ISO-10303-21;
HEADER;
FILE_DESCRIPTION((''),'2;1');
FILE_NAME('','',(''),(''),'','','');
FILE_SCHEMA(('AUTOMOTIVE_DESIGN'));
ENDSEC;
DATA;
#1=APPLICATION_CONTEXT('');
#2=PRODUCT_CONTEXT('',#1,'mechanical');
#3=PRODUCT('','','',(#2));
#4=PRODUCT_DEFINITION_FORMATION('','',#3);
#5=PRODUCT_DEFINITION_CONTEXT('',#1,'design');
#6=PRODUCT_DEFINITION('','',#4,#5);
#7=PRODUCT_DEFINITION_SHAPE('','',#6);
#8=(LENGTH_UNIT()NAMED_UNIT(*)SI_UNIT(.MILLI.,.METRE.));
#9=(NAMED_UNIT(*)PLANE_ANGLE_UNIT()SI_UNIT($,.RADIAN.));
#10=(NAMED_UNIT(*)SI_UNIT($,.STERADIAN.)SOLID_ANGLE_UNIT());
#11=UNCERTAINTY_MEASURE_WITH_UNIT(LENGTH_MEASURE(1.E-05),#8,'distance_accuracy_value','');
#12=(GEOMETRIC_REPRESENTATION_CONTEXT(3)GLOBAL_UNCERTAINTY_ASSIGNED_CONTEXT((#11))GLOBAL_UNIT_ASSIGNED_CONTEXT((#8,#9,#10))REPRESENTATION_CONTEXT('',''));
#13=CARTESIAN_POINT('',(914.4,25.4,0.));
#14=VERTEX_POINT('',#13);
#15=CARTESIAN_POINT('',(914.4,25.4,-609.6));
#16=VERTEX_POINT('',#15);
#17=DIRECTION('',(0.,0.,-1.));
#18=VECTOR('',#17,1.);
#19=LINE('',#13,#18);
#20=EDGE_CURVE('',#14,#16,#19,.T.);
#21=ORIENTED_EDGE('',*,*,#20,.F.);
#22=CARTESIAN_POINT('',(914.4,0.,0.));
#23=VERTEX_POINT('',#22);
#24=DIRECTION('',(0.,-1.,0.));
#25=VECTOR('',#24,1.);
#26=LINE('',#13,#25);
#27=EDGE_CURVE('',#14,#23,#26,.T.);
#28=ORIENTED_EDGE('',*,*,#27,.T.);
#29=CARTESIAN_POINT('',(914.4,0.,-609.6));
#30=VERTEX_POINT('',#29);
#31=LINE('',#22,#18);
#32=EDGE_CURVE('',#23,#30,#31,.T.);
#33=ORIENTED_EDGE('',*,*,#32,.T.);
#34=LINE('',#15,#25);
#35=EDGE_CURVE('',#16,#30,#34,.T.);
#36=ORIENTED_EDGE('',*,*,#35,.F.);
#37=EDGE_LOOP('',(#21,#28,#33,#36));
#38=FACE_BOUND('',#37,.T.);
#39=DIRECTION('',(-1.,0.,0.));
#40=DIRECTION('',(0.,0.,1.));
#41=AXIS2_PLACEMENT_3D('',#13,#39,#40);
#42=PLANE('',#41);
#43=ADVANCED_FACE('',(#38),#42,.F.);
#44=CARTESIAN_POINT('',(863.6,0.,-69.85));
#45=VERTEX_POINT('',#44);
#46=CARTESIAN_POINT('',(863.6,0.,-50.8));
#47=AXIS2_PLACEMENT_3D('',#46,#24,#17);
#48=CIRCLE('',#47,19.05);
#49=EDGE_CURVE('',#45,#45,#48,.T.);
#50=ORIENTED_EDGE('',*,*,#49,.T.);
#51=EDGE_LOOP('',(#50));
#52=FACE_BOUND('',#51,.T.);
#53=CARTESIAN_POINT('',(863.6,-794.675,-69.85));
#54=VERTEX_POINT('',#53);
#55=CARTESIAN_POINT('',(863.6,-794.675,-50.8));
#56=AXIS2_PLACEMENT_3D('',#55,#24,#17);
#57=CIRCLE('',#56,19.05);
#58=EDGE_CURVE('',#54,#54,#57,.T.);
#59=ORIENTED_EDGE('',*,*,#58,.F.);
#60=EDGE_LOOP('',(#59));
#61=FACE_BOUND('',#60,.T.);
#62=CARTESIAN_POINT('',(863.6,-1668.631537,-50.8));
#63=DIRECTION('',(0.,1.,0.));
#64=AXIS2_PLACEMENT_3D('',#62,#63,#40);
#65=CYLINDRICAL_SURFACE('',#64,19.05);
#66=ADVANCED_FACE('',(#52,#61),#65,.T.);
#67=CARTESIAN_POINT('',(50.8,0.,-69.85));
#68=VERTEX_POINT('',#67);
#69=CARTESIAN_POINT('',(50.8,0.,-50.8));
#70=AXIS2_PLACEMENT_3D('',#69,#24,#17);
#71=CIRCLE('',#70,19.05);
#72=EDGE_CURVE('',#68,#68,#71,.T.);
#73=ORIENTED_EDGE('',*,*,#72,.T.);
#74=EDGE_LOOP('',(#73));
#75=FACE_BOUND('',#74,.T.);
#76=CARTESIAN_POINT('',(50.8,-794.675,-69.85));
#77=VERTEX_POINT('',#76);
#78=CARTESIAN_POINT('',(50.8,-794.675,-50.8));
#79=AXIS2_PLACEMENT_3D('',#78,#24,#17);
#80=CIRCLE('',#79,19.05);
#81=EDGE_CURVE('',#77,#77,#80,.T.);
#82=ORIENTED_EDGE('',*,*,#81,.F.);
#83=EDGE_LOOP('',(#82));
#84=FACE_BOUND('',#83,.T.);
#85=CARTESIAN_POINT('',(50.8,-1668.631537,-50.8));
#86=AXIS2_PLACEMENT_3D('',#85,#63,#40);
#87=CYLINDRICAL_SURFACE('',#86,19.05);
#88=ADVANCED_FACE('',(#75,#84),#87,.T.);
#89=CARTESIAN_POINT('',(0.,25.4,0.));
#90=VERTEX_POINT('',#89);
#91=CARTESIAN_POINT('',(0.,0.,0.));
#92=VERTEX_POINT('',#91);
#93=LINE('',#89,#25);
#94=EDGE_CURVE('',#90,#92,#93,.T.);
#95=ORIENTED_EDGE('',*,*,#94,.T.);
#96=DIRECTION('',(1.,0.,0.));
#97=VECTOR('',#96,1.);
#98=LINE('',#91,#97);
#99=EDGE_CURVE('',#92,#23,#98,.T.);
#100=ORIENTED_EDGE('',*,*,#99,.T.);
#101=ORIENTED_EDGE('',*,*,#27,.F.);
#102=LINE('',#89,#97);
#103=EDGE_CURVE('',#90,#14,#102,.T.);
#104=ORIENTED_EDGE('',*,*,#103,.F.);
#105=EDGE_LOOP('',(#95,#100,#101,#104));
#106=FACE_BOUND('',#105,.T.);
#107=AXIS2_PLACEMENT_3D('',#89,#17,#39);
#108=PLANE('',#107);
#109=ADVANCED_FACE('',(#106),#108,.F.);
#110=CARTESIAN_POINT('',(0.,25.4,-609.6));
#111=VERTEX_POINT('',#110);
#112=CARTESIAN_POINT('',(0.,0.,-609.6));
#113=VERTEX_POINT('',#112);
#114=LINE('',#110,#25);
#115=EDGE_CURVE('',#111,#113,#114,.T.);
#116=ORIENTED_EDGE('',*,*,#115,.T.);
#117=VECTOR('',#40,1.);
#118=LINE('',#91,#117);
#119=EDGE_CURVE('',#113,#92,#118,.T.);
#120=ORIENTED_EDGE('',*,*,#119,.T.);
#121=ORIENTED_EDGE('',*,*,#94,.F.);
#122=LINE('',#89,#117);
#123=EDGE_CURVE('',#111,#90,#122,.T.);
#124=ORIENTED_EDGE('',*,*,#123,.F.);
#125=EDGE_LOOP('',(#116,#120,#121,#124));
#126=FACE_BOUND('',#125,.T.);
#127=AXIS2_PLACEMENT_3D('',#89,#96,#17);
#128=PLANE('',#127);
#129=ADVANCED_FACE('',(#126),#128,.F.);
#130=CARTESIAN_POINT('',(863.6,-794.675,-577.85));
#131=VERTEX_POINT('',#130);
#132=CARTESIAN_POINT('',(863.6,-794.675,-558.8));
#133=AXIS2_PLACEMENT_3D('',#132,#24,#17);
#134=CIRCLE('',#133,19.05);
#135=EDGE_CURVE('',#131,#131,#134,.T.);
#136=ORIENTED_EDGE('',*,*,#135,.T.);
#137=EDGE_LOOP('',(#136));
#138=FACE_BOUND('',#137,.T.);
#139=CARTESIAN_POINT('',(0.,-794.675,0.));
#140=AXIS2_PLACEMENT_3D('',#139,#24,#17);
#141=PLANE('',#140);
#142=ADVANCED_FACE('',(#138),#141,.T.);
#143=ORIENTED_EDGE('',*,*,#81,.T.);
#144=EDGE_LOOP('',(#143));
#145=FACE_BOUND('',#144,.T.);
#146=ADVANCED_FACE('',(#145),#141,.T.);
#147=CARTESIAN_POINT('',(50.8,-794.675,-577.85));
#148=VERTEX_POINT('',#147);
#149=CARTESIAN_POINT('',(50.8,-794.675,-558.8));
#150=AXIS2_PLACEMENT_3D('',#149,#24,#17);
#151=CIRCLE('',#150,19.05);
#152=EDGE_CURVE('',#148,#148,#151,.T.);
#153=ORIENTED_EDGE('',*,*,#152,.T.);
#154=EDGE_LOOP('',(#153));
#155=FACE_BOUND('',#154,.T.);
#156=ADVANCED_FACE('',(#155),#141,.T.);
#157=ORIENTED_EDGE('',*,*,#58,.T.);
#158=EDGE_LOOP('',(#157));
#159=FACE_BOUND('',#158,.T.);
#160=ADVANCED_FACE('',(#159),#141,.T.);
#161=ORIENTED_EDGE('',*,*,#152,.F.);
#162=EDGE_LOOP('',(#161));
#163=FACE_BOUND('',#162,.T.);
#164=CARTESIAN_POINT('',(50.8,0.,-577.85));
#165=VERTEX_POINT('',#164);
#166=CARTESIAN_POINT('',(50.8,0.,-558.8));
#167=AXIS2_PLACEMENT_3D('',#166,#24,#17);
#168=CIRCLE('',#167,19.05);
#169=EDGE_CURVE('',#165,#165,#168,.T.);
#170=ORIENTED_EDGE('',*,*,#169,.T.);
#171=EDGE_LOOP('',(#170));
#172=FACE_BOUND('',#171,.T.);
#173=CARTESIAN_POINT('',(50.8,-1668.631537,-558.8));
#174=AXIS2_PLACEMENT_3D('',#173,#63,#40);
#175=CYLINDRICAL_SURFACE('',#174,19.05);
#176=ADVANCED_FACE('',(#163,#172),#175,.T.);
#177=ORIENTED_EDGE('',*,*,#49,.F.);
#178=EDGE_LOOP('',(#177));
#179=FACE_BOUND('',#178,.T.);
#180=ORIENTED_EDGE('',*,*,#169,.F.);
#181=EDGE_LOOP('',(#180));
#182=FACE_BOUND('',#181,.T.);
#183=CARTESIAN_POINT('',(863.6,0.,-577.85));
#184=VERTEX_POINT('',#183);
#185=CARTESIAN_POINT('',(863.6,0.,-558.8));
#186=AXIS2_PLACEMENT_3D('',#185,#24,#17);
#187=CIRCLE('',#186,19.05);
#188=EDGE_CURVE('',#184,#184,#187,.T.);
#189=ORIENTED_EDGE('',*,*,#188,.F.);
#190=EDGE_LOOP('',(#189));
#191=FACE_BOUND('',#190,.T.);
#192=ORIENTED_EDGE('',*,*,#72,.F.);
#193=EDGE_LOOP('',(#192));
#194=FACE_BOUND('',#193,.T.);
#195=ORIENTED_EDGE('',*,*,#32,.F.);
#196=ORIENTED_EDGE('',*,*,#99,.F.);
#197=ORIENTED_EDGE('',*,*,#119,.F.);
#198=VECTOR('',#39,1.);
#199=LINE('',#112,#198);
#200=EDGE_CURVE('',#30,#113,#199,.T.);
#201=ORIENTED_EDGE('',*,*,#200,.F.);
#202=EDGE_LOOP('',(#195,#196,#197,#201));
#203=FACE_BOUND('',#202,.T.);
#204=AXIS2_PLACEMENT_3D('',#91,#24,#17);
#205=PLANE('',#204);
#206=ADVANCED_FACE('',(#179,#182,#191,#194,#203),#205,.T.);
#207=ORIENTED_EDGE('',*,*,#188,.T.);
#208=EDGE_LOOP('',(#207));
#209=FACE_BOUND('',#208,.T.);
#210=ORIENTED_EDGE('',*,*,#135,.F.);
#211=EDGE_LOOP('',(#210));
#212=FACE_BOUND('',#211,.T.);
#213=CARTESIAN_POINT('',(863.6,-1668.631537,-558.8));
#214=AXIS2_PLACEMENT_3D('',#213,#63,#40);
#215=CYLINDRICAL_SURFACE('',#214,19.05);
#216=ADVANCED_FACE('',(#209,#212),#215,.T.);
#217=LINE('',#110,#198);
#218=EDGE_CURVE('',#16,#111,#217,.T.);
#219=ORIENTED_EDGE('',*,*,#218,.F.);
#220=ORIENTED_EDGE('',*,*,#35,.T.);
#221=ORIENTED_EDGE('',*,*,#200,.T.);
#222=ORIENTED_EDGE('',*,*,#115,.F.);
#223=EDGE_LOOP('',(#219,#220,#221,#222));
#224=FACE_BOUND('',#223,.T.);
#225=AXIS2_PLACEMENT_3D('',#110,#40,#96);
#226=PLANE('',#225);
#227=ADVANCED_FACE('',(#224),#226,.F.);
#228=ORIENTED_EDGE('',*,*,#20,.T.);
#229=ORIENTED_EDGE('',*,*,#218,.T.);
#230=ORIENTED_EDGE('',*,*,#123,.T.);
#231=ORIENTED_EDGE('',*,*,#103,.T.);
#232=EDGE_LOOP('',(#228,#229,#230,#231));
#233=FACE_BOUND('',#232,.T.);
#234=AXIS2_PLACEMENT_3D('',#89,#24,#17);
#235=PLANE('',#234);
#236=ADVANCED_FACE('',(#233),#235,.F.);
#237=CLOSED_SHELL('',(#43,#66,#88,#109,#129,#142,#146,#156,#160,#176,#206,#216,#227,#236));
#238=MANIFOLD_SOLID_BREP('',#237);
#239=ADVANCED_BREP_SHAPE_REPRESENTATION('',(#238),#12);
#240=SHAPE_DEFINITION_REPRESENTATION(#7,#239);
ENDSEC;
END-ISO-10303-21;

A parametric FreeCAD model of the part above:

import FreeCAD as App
import Part
import Sketcher
Q = App.Units.Quantity

doc = App.newDocument("Part")
params = doc.addObject("Spreadsheet::Sheet", "Params")
for row, (alias, value) in enumerate([
    ("sketch1_width", "36 in"),
    ("sketch1_height", "24 in"),
    ("pad1_length", "1 in"),
    ("sketch2_diameter", "1.5 in"),
    ("pad2_length", "794.675 mm"),
], start=1):
    params.set(f"A{row}", alias)
    params.set(f"B{row}", "=" + value)
    params.setAlias(f"B{row}", alias)

body = doc.addObject("PartDesign::Body", "Body")

# Sketch on XZ plane
sketch1 = body.newObject("Sketcher::SketchObject", "Sketch")
sketch1.AttachmentSupport = (doc.getObject("XZ_Plane"), [""])
sketch1.MapMode = "FlatFace"
sketch1.addGeometry(Part.LineSegment(App.Vector(0, -610, 0), App.Vector(0, 0, 0)), False)
sketch1.addGeometry(Part.LineSegment(App.Vector(0, 0, 0), App.Vector(914, 0, 0)), False)
sketch1.addGeometry(Part.LineSegment(App.Vector(914, 0, 0), App.Vector(914, -610, 0)), False)
sketch1.addGeometry(Part.LineSegment(App.Vector(914, -610, 0), App.Vector(0, -610, 0)), False)
sketch1.addConstraint(Sketcher.Constraint("Coincident", 0, 2, 1, 1))
sketch1.addConstraint(Sketcher.Constraint("Coincident", 1, 2, 2, 1))
sketch1.addConstraint(Sketcher.Constraint("Coincident", 2, 2, 3, 1))
sketch1.addConstraint(Sketcher.Constraint("Coincident", 3, 2, 0, 1))
sketch1.addConstraint(Sketcher.Constraint("Vertical", 0))
sketch1.addConstraint(Sketcher.Constraint("Horizontal", 1))
sketch1.addConstraint(Sketcher.Constraint("Vertical", 2))
sketch1.addConstraint(Sketcher.Constraint("Horizontal", 3))
sketch1.addConstraint(Sketcher.Constraint("Coincident", 0, 2, -1, 1))
sketch1.addConstraint(Sketcher.Constraint("DistanceX", 1, 1, 1, 2, Q("36 in")))
sketch1.addConstraint(Sketcher.Constraint("DistanceY", 0, 1, 0, 2, Q("24 in")))
sketch1.setExpression("Constraints[9]", "Params.sketch1_width")
sketch1.setExpression("Constraints[10]", "Params.sketch1_height")
pad1 = body.newObject("PartDesign::Pad", "Pad")
pad1.Profile = sketch1
pad1.setExpression("Length", "Params.pad1_length")
pad1.Reversed = True

# Sketch on XZ plane
sketch2 = body.newObject("Sketcher::SketchObject", "Sketch001")
sketch2.AttachmentSupport = (doc.getObject("XZ_Plane"), [""])
sketch2.MapMode = "FlatFace"
sketch2.addGeometry(Part.Circle(App.Vector(51, -51, 0), App.Vector(0, 0, 1), 19), False)
sketch2.addGeometry(Part.Circle(App.Vector(864, -51, 0), App.Vector(0, 0, 1), 19), False)
sketch2.addGeometry(Part.Circle(App.Vector(51, -559, 0), App.Vector(0, 0, 1), 19), False)
sketch2.addGeometry(Part.Circle(App.Vector(864, -559, 0), App.Vector(0, 0, 1), 19), False)
sketch2.addConstraint(Sketcher.Constraint("Equal", 0, 1))
sketch2.addConstraint(Sketcher.Constraint("Equal", 1, 2))
sketch2.addConstraint(Sketcher.Constraint("Equal", 2, 3))
sketch2.addConstraint(Sketcher.Constraint("Horizontal", 0, 3, 1, 3))
sketch2.addConstraint(Sketcher.Constraint("Horizontal", 2, 3, 3, 3))
sketch2.addConstraint(Sketcher.Constraint("Vertical", 0, 3, 2, 3))
sketch2.addConstraint(Sketcher.Constraint("Vertical", 1, 3, 3, 3))
sketch2.addConstraint(Sketcher.Constraint("Diameter", 0, Q("1.5 in")))
sketch2.addConstraint(Sketcher.Constraint("DistanceX", -1, 1, 0, 3, Q("2 in")))
sketch2.addConstraint(Sketcher.Constraint("DistanceY", 0, 3, -1, 1, Q("2 in")))
sketch2.addConstraint(Sketcher.Constraint("DistanceX", -1, 1, 1, 3, Q("34 in")))
sketch2.addConstraint(Sketcher.Constraint("DistanceY", 2, 3, -1, 1, Q("22 in")))
sketch2.setExpression("Constraints[7]", "Params.sketch2_diameter")
pad2 = body.newObject("PartDesign::Pad", "Pad001")
pad2.Profile = sketch2
pad2.setExpression("Length", "Params.pad2_length")

doc.recompute()
